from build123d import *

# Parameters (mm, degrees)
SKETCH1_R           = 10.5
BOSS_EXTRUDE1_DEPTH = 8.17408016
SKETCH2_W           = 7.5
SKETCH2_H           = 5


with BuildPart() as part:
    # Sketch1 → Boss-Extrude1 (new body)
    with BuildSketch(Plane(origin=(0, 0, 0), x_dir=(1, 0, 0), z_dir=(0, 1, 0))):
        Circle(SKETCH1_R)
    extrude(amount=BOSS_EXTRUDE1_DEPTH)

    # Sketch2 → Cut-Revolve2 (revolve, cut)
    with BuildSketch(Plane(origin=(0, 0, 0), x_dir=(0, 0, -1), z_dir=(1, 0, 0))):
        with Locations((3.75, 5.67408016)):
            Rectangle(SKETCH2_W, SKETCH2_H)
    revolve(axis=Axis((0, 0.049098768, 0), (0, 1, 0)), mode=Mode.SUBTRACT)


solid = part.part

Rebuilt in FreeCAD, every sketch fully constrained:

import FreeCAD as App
import Part
import Sketcher

V = App.Vector

doc = App.newDocument("Part")
params = doc.addObject("Spreadsheet::Sheet", "Params")
for row, (alias, value) in enumerate([
    ("sketch1_diameter", "21 mm"),
    ("pad1_length", "8.17408 mm"),
    ("sketch2_width", "5 mm"),
    ("sketch2_height", "7.5 mm"),
    ("groove_angle", "360 deg"),
], start=1):
    params.set(f"A{row}", alias)
    params.set(f"B{row}", "=" + value)
    params.setAlias(f"B{row}", alias)

body = doc.addObject("PartDesign::Body", "Body")

# Sketch on XZ plane
sketch1 = body.newObject("Sketcher::SketchObject", "Sketch")
sketch1.AttachmentSupport = (doc.getObject("XZ_Plane"), [""])
sketch1.MapMode = "FlatFace"
sketch1.addGeometry(Part.Circle(V(0, 0, 0), V(0, 0, 1), 10), False)
sketch1.addConstraint(Sketcher.Constraint("Coincident", 0, 3, -1, 1))
sketch1.addConstraint(Sketcher.Constraint("Diameter", 0, 21.0))
sketch1.setExpression("Constraints[1]", "Params.sketch1_diameter")
pad1 = body.newObject("PartDesign::Pad", "Pad")
pad1.Profile = sketch1
pad1.setExpression("Length", "Params.pad1_length")
pad1.Reversed = True

# Sketch on YZ plane
sketch2 = body.newObject("Sketcher::SketchObject", "Sketch001")
sketch2.AttachmentSupport = (doc.getObject("YZ_Plane"), [""])
sketch2.MapMode = "FlatFace"
sketch2.addGeometry(Part.LineSegment(V(8, 0, 0), V(3, 0, 0)), False)
sketch2.addGeometry(Part.LineSegment(V(3, 0, 0), V(3, -8, 0)), False)
sketch2.addGeometry(Part.LineSegment(V(3, -8, 0), V(8, -8, 0)), False)
sketch2.addGeometry(Part.LineSegment(V(8, -8, 0), V(8, 0, 0)), False)
sketch2.addConstraint(Sketcher.Constraint("Coincident", 0, 2, 1, 1))
sketch2.addConstraint(Sketcher.Constraint("Coincident", 1, 2, 2, 1))
sketch2.addConstraint(Sketcher.Constraint("Coincident", 2, 2, 3, 1))
sketch2.addConstraint(Sketcher.Constraint("Coincident", 3, 2, 0, 1))
sketch2.addConstraint(Sketcher.Constraint("Horizontal", 0))
sketch2.addConstraint(Sketcher.Constraint("Vertical", 1))
sketch2.addConstraint(Sketcher.Constraint("Horizontal", 2))
sketch2.addConstraint(Sketcher.Constraint("Vertical", 3))
sketch2.addConstraint(Sketcher.Constraint("PointOnObject", 0, 2, -1))
sketch2.addConstraint(Sketcher.Constraint("DistanceX", 0, 2, 0, 1, 5.0))
sketch2.addConstraint(Sketcher.Constraint("DistanceY", 1, 2, 1, 1, 7.5))
sketch2.addConstraint(Sketcher.Constraint("DistanceX", -1, 1, 0, 2, 3.17408))
sketch2.setExpression("Constraints[9]", "Params.sketch2_width")
sketch2.setExpression("Constraints[10]", "Params.sketch2_height")
groove = body.newObject("PartDesign::Groove", "Groove")
groove.Profile = sketch2
groove.ReferenceAxis = (sketch2, ["H_Axis"])
groove.setExpression("Angle", "Params.groove_angle")

doc.recompute()
